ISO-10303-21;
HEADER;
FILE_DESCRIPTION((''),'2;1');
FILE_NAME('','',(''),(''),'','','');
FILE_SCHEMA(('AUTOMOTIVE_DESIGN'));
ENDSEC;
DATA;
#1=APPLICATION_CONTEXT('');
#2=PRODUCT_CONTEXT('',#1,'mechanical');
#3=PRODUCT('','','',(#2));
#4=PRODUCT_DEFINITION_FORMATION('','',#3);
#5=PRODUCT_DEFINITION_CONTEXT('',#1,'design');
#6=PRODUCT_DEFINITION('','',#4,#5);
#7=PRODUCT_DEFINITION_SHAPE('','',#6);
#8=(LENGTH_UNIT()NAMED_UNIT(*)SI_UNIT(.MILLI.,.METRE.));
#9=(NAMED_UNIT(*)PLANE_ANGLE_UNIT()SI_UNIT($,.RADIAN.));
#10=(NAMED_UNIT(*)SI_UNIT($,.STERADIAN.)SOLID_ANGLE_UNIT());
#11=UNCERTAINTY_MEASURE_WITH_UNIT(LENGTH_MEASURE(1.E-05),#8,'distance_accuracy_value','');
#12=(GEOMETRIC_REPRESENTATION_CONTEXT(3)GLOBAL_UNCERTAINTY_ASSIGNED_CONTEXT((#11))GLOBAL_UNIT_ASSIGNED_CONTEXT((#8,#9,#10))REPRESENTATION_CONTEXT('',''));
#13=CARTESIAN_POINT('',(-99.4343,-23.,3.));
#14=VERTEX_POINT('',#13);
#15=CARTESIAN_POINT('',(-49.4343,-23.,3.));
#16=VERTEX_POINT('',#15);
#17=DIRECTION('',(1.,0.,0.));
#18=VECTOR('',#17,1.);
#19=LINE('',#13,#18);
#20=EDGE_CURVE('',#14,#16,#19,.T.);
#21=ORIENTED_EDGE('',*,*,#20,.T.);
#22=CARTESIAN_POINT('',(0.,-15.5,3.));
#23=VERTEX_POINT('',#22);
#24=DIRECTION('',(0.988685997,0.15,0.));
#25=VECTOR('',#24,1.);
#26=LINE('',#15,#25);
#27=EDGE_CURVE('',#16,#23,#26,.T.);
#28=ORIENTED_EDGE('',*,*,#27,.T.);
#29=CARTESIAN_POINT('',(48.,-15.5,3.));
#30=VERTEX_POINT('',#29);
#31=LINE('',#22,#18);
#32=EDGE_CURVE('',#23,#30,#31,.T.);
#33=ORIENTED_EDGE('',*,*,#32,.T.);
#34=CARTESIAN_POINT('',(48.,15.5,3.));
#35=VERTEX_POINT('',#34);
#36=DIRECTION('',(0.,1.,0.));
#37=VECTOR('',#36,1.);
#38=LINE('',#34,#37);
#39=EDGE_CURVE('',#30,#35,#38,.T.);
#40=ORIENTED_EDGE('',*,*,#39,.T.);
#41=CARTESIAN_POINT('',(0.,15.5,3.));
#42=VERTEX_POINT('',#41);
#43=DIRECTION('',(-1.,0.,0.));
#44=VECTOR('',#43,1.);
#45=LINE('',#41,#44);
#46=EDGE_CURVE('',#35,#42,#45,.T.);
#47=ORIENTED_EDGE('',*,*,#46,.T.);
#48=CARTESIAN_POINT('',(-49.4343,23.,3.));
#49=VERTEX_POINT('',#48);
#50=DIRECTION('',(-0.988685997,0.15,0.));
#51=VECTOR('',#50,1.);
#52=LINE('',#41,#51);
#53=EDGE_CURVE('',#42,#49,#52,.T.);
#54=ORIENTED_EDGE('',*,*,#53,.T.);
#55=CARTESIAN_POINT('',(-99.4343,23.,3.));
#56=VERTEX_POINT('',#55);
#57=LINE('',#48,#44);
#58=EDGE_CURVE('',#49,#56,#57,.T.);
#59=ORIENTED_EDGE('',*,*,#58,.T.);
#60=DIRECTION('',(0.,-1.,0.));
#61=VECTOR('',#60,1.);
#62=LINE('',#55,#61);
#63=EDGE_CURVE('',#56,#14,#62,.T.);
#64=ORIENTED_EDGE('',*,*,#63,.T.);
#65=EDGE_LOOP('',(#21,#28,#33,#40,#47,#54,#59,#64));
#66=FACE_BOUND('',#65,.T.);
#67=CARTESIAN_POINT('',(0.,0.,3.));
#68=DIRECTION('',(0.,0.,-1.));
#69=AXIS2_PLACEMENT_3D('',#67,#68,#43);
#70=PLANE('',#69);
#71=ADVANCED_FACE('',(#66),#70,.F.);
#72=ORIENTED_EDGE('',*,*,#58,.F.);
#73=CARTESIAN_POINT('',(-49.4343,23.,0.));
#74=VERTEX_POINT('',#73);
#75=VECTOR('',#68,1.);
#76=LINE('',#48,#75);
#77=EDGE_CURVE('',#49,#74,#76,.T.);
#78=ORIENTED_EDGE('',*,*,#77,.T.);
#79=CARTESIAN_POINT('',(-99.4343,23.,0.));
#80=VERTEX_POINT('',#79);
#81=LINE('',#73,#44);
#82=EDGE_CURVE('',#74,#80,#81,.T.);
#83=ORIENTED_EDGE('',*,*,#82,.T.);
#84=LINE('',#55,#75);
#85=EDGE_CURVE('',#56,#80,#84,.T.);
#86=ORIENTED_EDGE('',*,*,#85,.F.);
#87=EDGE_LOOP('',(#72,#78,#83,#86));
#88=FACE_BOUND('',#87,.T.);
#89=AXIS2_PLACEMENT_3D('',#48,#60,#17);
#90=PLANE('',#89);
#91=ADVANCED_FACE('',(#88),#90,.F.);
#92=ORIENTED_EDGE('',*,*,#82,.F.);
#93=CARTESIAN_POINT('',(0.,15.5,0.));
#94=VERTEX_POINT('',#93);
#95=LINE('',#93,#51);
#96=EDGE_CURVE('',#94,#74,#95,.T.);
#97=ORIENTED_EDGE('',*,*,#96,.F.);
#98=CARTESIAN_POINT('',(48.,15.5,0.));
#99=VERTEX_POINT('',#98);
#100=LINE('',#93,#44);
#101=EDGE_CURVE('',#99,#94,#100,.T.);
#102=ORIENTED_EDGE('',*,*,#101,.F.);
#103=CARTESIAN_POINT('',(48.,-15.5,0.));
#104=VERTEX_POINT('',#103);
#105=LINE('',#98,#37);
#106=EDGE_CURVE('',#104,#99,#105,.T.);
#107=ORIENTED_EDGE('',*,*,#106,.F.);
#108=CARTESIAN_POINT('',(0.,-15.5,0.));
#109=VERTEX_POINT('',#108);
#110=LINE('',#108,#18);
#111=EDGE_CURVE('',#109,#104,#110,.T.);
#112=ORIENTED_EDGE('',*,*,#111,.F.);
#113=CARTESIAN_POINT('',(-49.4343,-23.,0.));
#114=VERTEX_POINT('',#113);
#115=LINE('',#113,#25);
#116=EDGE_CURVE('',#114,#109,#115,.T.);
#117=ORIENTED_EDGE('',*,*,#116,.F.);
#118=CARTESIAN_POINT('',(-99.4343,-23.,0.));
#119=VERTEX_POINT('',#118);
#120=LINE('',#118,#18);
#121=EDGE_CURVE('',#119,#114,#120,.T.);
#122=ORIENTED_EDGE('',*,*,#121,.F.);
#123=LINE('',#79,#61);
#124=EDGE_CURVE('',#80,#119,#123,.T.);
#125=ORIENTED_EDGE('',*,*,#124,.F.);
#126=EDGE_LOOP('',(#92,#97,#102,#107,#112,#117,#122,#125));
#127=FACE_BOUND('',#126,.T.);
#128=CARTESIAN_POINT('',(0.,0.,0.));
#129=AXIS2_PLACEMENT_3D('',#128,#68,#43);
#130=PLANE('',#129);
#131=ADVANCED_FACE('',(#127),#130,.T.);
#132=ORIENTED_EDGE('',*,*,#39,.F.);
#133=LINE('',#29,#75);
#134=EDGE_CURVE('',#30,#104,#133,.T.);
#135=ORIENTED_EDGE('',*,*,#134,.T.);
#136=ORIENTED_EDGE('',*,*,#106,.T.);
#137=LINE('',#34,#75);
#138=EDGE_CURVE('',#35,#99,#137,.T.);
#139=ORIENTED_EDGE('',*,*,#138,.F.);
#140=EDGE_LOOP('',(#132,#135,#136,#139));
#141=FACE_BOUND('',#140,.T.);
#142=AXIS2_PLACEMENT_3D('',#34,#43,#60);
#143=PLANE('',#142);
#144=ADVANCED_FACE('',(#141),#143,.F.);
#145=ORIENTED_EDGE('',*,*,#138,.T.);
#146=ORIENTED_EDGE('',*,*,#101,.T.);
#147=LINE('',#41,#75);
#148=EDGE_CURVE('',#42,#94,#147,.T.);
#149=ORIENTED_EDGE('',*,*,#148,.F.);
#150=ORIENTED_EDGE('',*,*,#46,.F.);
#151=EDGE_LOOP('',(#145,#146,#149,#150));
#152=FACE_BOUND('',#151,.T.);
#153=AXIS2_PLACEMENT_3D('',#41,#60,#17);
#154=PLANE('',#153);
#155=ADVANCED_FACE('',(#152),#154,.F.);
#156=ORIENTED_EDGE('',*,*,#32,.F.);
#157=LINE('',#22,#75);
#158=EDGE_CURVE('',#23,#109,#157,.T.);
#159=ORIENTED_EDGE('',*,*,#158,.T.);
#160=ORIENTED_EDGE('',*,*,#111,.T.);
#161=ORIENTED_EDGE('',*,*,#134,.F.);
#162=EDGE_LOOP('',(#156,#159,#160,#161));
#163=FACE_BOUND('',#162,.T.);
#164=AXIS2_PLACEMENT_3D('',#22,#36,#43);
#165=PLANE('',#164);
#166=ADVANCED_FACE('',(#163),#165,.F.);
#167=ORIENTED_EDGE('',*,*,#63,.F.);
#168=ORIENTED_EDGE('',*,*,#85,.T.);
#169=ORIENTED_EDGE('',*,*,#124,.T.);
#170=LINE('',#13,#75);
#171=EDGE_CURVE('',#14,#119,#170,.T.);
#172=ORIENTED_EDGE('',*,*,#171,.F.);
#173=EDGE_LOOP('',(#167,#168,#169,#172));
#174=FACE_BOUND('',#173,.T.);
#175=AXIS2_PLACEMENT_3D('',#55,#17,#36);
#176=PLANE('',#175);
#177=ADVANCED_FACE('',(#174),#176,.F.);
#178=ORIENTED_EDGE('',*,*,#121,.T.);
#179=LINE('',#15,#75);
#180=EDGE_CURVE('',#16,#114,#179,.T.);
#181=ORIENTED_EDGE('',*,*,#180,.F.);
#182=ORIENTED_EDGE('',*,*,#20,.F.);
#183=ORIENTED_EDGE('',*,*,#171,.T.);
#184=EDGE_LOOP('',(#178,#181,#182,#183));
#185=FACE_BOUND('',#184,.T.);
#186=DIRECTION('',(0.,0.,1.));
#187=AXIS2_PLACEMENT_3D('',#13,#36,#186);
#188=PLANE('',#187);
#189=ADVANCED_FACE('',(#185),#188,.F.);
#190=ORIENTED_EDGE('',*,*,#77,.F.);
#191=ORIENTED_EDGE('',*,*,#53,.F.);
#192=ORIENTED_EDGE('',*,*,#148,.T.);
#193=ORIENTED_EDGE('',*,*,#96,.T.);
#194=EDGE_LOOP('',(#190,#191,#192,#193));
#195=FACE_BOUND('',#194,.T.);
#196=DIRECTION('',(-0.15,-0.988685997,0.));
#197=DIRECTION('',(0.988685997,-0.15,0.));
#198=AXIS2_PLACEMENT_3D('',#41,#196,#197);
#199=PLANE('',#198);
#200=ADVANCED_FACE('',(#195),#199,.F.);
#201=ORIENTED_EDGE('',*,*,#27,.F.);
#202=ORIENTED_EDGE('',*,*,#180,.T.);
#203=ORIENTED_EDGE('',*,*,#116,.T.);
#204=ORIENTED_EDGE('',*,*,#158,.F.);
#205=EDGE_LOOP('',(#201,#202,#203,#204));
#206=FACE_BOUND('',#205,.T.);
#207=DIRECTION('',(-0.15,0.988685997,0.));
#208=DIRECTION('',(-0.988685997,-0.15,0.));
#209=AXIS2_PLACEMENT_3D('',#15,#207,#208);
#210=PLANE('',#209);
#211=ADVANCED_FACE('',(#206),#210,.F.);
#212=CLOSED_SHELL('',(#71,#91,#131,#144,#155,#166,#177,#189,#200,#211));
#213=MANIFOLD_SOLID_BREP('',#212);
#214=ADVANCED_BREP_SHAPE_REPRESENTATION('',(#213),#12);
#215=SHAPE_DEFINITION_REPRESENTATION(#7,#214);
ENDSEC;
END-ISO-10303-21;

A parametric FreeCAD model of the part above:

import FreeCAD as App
import Part
import Sketcher
from FreeCAD import Vector
Q = App.Units.Quantity


def add_polygon(sketch, points):
    """Adds a closed chain of lines whose ends are joined by coincident constraints."""
    first, n = sketch.GeometryCount, len(points)
    for a, b in zip(points, points[1:] + points[:1]):
        sketch.addGeometry(Part.LineSegment(App.Vector(*a, 0), App.Vector(*b, 0)), False)
    for i in range(n):
        sketch.addConstraint(Sketcher.Constraint("Coincident", first + i, 2, first + (i + 1) % n, 1))

doc = App.newDocument("Part")
body = doc.addObject("PartDesign::Body", "Body")

# Sketch on XY plane
sketch1 = body.newObject("Sketcher::SketchObject", "Sketch")
sketch1.AttachmentSupport = (doc.getObject("XY_Plane"), [""])
sketch1.MapMode = "FlatFace"
add_polygon(sketch1, [(0, 15.5), (-49.4343, 23), (-99.4343, 23), (-99.4343, -23), (-49.4343, -23), (0, -15.5), (48, -15.5), (48, 15.5)])  # lines 0-7
sketch1.addConstraint([
    Sketcher.Constraint("Horizontal", 1),
    Sketcher.Constraint("Vertical", 2),
    Sketcher.Constraint("Horizontal", 3),
    Sketcher.Constraint("Horizontal", 5),
    Sketcher.Constraint("Vertical", 6),
    Sketcher.Constraint("Horizontal", 7),
    Sketcher.Constraint("Symmetric", 4, 2, 7, 2, -1, 1),
    Sketcher.Constraint("Symmetric", 0, 2, 3, 2, -1),
    Sketcher.Constraint("PointOnObject", 4, 2, -2),
    Sketcher.Constraint("DistanceX", 1, 2, 1, 1, Q("50 mm")),
    Sketcher.Constraint("DistanceX", 5, 1, 5, 2, Q("48 mm")),
    Sketcher.Constraint("DistanceY", 2, 2, 2, 1, Q("46 mm")),
    Sketcher.Constraint("DistanceY", 6, 1, 6, 2, Q("31 mm")),
    Sketcher.Constraint("Distance", 0, Q("50 mm")),
])
pad1 = body.newObject("PartDesign::Pad", "Pad")
pad1.Profile = sketch1
pad1.Length = 3

doc.recompute()
